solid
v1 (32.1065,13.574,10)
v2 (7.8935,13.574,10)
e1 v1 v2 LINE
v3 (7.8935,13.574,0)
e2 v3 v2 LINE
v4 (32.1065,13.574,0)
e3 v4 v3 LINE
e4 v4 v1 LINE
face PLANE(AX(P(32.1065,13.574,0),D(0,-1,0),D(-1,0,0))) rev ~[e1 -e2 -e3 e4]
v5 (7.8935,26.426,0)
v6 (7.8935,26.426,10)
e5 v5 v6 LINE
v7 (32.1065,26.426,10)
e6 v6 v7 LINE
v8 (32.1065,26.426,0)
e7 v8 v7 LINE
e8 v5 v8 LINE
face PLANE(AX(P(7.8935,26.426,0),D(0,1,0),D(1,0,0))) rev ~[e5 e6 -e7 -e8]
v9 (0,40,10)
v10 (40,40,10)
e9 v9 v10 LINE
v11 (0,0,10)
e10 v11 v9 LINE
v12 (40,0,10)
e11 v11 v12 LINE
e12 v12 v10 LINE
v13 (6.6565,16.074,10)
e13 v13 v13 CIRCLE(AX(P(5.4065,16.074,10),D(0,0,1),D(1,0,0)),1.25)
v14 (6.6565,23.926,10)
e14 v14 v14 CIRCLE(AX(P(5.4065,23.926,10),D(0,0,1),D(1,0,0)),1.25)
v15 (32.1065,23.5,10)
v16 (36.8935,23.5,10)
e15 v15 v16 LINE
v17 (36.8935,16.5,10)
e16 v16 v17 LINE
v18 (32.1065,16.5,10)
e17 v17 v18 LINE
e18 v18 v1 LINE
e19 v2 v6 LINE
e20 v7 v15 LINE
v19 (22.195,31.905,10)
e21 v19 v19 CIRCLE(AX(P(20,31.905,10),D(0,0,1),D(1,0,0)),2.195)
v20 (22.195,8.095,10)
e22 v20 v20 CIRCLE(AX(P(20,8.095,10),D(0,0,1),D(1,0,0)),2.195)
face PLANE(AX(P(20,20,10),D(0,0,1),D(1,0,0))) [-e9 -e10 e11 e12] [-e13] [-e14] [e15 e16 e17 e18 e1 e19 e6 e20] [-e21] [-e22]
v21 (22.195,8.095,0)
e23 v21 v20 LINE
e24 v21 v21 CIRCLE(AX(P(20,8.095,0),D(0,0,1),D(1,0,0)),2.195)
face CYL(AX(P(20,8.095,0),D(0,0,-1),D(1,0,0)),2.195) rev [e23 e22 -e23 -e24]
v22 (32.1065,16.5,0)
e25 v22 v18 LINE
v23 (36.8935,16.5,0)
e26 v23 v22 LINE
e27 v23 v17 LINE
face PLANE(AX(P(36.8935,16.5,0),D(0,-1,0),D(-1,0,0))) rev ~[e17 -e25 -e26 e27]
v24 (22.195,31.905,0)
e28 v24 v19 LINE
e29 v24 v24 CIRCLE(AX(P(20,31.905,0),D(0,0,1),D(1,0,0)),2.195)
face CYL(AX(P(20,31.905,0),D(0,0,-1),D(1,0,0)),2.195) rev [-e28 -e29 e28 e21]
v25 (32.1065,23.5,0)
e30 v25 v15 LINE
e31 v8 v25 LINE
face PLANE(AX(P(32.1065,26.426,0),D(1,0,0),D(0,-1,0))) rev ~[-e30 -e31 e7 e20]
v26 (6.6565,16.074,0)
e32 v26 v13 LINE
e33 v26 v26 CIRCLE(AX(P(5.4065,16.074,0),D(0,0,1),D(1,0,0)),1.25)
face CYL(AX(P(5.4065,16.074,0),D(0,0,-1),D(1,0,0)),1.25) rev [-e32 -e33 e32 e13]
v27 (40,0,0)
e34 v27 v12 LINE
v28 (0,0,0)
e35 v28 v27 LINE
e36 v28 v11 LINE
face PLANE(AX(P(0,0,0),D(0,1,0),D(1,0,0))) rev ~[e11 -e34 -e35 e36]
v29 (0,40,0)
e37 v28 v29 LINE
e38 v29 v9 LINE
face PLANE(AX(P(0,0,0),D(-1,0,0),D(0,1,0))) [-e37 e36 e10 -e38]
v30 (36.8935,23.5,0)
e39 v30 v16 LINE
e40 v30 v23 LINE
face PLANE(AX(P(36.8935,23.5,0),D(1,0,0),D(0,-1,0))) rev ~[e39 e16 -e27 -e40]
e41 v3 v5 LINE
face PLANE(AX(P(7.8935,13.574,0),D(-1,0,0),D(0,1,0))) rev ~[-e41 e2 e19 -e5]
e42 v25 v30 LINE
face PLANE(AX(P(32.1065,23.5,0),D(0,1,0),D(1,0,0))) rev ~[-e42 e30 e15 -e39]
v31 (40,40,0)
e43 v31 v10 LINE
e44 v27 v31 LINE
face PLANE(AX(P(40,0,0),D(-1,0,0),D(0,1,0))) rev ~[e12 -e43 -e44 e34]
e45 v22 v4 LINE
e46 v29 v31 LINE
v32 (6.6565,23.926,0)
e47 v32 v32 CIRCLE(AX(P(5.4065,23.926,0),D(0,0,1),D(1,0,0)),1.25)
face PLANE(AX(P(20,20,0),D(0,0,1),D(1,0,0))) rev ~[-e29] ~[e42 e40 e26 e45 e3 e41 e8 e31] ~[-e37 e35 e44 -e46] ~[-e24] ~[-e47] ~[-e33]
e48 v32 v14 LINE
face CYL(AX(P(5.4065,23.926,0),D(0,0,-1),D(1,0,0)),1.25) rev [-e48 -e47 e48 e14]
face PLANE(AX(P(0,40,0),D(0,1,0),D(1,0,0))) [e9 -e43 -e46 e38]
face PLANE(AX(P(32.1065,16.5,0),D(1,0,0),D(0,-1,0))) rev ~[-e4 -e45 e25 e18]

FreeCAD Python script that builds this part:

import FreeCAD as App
import Part
import Sketcher

V = App.Vector


def add_polygon(sketch, points):
    """Adds a closed chain of lines whose ends are joined by coincident constraints."""
    first, n = sketch.GeometryCount, len(points)
    for a, b in zip(points, points[1:] + points[:1]):
        sketch.addGeometry(Part.LineSegment(App.Vector(*a, 0), App.Vector(*b, 0)), False)
    for i in range(n):
        sketch.addConstraint(Sketcher.Constraint("Coincident", first + i, 2, first + (i + 1) % n, 1))

doc = App.newDocument("Part")
body = doc.addObject("PartDesign::Body", "Body")

# Sketch on XY plane
sketch1 = body.newObject("Sketcher::SketchObject", "Sketch")
sketch1.AttachmentSupport = (doc.getObject("XY_Plane"), [""])
sketch1.MapMode = "FlatFace"
add_polygon(sketch1, [(0, 40), (0, 0), (40, 0), (40, 40)])  # lines 0-3
sketch1.addGeometry(Part.Circle(V(20, 8.095, 0), V(0, 0, 1), 2.195), False)  # 4
sketch1.addGeometry(Part.Circle(V(5.4065, 16.074, 0), V(0, 0, 1), 1.25), False)  # 5
add_polygon(sketch1, [(32.1065, 13.574), (7.8935, 13.574), (7.8935, 26.426), (32.1065, 26.426), (32.1065, 23.5), (36.8935, 23.5), (36.8935, 16.5), (32.1065, 16.5)])  # lines 6-13
sketch1.addGeometry(Part.Circle(V(5.4065, 23.926, 0), V(0, 0, 1), 1.25), False)  # 14
sketch1.addGeometry(Part.Circle(V(20, 31.905, 0), V(0, 0, 1), 2.195), False)  # 15
sketch1.addConstraint([
    Sketcher.Constraint("Vertical", 0),
    Sketcher.Constraint("Horizontal", 1),
    Sketcher.Constraint("Vertical", 2),
    Sketcher.Constraint("Horizontal", 3),
    Sketcher.Constraint("Horizontal", 6),
    Sketcher.Constraint("Vertical", 7),
    Sketcher.Constraint("Horizontal", 8),
    Sketcher.Constraint("Vertical", 9),
    Sketcher.Constraint("Horizontal", 10),
    Sketcher.Constraint("Vertical", 11),
    Sketcher.Constraint("Horizontal", 12),
    Sketcher.Constraint("Vertical", 13),
    Sketcher.Constraint("Coincident", 0, 2, -1, 1),
    Sketcher.Constraint("Equal", 5, 14),
    Sketcher.Constraint("Equal", 4, 15),
    Sketcher.Constraint("Vertical", 5, 3, 14, 3),
    Sketcher.Constraint("Vertical", 4, 3, 15, 3),
    Sketcher.Constraint("Vertical", 9, 2, 12, 2),
    Sketcher.Constraint("Equal", 3, 0),
    Sketcher.Constraint("Equal", 9, 13),
    Sketcher.Constraint("Diameter", 5, 2.5),
    Sketcher.Constraint("Diameter", 4, 4.39),
    Sketcher.Constraint("DistanceX", 1, 1, 1, 2, 40.0),
    Sketcher.Constraint("DistanceY", 11, 2, 11, 1, 7.0),
    Sketcher.Constraint("DistanceX", -1, 1, 4, 3, 20.0),
    Sketcher.Constraint("DistanceY", -1, 1, 9, 2, 23.5),
    Sketcher.Constraint("DistanceY", 6, 2, 5, 3, 2.5),
    Sketcher.Constraint("DistanceY", 14, 3, 7, 2, 2.5),
    Sketcher.Constraint("DistanceX", 14, 3, 8, 2, 26.7),
    Sketcher.Constraint("DistanceX", 6, 2, 6, 1, 24.213),
    Sketcher.Constraint("DistanceX", 10, 1, 10, 2, 4.787),
    Sketcher.Constraint("DistanceY", 7, 1, 7, 2, 12.852),
    Sketcher.Constraint("DistanceY", 4, 3, 15, 3, 23.81),
    Sketcher.Constraint("DistanceY", -1, 1, 4, 3, 8.095),
    Sketcher.Constraint("DistanceX", -1, 1, 5, 3, 5.4065),
])
pad1 = body.newObject("PartDesign::Pad", "Pad")
pad1.Profile = sketch1
pad1.Length = 10

doc.recompute()
